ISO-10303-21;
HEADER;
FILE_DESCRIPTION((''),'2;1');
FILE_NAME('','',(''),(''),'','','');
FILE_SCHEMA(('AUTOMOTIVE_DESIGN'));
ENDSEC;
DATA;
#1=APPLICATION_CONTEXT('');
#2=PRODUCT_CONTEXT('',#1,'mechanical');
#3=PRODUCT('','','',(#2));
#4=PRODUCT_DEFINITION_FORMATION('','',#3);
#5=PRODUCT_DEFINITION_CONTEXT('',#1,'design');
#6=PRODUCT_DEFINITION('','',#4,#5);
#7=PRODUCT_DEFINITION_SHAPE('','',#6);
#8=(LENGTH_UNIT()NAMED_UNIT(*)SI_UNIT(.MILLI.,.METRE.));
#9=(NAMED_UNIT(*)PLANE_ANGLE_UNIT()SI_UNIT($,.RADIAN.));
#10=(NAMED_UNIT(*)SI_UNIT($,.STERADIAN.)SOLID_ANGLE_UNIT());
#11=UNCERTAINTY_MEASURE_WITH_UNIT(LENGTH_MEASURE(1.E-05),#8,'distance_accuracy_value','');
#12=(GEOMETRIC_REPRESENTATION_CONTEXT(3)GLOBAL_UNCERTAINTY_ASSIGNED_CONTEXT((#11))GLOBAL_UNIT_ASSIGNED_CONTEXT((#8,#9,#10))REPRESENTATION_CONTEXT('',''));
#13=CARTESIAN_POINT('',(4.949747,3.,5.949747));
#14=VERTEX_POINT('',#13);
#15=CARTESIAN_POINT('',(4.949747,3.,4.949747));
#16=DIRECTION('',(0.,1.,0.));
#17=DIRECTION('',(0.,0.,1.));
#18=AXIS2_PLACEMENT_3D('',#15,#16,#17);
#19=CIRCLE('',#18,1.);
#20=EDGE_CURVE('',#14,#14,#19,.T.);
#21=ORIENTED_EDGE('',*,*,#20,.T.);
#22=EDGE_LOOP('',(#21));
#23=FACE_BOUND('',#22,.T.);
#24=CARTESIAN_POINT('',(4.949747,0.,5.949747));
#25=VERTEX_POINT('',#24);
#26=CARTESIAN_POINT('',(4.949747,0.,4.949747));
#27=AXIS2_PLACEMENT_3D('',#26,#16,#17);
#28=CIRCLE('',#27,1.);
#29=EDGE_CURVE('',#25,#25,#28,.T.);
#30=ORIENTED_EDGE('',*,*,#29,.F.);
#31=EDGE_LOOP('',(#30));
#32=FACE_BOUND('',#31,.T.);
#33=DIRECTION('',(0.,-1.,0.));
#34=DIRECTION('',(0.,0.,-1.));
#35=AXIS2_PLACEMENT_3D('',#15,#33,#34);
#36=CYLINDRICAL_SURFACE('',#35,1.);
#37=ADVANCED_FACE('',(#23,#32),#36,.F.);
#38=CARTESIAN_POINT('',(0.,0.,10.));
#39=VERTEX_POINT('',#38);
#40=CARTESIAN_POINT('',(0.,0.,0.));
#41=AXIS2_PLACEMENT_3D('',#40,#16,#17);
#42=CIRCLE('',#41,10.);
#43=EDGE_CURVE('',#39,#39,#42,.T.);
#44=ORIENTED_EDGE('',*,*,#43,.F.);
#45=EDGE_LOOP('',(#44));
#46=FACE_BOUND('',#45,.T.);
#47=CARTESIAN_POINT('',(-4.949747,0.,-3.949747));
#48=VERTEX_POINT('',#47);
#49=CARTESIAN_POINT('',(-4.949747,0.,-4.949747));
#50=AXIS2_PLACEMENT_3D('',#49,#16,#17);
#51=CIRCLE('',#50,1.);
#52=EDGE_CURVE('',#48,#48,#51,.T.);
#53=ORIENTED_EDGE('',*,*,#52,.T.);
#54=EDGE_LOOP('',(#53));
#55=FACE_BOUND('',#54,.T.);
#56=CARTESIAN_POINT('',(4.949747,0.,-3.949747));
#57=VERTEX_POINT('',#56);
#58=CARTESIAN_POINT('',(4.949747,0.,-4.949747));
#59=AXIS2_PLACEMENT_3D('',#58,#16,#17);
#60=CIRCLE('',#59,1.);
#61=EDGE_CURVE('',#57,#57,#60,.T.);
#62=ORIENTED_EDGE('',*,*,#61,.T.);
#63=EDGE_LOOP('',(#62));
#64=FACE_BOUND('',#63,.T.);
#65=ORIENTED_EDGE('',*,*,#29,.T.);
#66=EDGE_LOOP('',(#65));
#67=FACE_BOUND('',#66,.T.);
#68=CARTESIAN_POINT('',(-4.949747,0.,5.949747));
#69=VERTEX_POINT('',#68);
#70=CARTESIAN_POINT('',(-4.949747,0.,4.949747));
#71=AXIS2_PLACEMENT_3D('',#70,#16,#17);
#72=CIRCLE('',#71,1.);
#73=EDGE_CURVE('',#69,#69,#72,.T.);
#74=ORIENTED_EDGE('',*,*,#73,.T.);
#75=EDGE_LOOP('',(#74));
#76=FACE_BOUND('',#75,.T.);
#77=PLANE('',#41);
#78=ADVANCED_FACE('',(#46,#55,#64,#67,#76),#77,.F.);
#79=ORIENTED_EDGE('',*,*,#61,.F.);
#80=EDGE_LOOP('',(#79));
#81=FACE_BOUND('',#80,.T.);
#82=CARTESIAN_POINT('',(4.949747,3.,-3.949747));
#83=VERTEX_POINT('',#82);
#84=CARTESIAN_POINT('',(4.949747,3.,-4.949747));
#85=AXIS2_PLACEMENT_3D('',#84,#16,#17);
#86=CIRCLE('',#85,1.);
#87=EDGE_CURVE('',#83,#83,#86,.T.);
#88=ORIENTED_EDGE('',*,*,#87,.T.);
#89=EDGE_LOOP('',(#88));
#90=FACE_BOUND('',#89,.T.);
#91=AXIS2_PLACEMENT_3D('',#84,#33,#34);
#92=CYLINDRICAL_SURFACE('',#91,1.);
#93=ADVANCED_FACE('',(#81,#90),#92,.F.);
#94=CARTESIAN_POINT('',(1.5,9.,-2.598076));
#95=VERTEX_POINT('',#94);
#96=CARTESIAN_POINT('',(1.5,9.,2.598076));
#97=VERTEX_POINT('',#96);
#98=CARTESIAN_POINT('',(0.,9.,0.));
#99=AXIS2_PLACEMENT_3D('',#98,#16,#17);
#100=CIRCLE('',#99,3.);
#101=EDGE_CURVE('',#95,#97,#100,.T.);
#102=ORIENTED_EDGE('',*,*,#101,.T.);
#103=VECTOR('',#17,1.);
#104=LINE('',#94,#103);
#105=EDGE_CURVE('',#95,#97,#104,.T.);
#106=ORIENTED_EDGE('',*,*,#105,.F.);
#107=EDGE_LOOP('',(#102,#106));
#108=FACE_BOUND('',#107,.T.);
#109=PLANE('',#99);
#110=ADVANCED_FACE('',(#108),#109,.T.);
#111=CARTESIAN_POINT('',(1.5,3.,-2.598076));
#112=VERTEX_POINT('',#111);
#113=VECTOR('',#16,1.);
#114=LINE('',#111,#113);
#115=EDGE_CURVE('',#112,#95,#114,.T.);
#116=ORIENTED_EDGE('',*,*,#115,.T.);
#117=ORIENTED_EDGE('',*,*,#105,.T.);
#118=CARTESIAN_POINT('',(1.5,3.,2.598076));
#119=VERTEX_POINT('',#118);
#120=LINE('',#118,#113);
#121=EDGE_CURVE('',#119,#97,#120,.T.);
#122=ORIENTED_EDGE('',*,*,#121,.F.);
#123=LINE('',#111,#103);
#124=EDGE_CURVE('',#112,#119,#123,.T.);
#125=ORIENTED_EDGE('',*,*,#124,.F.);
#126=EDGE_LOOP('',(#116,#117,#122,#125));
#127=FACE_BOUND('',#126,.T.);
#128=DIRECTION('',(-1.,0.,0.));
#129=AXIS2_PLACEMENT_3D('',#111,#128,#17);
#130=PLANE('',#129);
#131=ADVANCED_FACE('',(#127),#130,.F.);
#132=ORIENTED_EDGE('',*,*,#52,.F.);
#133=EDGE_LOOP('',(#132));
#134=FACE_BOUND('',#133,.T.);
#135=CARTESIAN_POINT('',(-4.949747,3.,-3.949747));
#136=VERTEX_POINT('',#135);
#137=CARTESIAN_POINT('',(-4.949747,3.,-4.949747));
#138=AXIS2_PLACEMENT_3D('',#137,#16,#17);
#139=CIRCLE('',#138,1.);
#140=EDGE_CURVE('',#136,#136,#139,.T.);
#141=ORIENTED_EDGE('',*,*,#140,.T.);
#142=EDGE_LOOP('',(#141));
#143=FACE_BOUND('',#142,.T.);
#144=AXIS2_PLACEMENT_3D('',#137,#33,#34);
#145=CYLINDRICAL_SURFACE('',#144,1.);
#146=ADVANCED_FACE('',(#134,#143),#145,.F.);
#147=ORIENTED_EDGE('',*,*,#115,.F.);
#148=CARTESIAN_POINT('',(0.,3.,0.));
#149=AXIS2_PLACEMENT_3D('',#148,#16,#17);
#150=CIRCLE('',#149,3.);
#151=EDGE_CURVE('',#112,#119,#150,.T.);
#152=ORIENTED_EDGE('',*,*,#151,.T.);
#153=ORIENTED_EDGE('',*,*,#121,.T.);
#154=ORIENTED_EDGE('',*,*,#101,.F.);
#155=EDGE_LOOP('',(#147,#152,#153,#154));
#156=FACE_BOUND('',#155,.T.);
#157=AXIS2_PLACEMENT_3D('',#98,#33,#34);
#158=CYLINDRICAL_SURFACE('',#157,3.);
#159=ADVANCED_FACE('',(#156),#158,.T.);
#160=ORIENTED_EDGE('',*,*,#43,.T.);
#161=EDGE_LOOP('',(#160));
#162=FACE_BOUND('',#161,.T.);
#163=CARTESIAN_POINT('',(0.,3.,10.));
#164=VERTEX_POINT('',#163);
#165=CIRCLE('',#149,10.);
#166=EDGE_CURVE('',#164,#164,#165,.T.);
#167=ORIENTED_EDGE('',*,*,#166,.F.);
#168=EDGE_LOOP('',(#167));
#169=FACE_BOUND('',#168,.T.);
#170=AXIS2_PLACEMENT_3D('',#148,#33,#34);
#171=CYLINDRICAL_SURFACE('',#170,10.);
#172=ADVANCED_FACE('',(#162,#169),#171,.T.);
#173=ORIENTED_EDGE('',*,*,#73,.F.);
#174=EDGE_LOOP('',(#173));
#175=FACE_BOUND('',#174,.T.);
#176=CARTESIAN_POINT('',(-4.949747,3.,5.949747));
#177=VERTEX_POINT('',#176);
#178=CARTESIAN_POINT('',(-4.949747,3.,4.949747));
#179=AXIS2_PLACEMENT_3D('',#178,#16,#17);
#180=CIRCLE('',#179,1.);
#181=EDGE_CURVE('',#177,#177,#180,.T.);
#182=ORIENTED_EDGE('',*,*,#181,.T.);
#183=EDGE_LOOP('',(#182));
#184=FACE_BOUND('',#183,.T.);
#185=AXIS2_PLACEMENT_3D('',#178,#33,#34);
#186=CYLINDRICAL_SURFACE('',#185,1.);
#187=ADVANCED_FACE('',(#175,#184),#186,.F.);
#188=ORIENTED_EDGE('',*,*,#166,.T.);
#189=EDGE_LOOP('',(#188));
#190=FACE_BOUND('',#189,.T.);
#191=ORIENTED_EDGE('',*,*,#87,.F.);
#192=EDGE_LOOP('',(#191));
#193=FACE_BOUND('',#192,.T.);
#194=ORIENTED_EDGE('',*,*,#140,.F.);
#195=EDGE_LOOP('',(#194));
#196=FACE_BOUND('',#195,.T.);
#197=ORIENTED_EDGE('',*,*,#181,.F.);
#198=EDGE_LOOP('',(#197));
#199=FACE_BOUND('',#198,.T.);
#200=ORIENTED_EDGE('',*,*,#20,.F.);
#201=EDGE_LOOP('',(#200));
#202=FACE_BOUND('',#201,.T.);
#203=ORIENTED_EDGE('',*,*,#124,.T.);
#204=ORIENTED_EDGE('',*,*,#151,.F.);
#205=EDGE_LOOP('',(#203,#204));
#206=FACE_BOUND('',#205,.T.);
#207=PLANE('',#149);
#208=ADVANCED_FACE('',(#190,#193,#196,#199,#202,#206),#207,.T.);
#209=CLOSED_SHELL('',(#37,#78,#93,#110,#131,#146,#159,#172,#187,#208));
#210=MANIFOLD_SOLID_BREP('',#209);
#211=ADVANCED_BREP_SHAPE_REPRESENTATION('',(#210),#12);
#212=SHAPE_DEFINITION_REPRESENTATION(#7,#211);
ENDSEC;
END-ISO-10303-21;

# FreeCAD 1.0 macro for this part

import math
import FreeCAD as App
import Part
import Sketcher

V = App.Vector

doc = App.newDocument("Part")
body = doc.addObject("PartDesign::Body", "Body")

# Sketch on XZ plane
sketch1 = doc.addObject("Sketcher::SketchObject", "Sketch")
body.addObject(sketch1)
sketch1.AttachmentSupport = (doc.XZ_Plane, [""])
sketch1.MapMode = "FlatFace"
sketch1.addGeometry([
    Part.Circle(V(0, 0, 0), V(0, 0, 1), 10),  # 0
    Part.Circle(V(-4.9, -4.9, 0), V(0, 0, 1), 1),  # 1
    Part.Circle(V(-4.9, 4.9, 0), V(0, 0, 1), 1),  # 2
    Part.Circle(V(4.9, -4.9, 0), V(0, 0, 1), 1),  # 3
    Part.Circle(V(4.9, 4.9, 0), V(0, 0, 1), 1),  # 4
], False)
sketch1.addConstraint([
    Sketcher.Constraint("Coincident", 0, 3, -1, 1),
    Sketcher.Constraint("Equal", 1, 2),
    Sketcher.Constraint("Equal", 2, 3),
    Sketcher.Constraint("Equal", 3, 4),
    Sketcher.Constraint("Symmetric", 2, 3, 3, 3, -1, 1),
    Sketcher.Constraint("Symmetric", 1, 3, 4, 3, -1, 1),
    Sketcher.Constraint("Symmetric", 1, 3, 3, 3, -2),
    Sketcher.Constraint("Diameter", 0, 20.0),
    Sketcher.Constraint("Diameter", 1, 2.0),
    Sketcher.Constraint("DistanceX", 1, 3, -1, 1, 4.949747),
    Sketcher.Constraint("DistanceY", 1, 3, -1, 1, 4.949747),
])
pad1 = doc.addObject("PartDesign::Pad", "Pad")
body.addObject(pad1)
pad1.Profile = sketch1
pad1.Length = 3
pad1.Reversed = True

# Sketch on XZ plane
sketch2 = doc.addObject("Sketcher::SketchObject", "Sketch001")
body.addObject(sketch2)
sketch2.AttachmentSupport = (doc.XZ_Plane, [""])
sketch2.MapMode = "FlatFace"
sketch2.AttachmentOffset = App.Placement(V(0, 0, -3), App.Rotation())
sketch2.addGeometry(Part.Circle(V(0, 0, 0), V(0, 0, 1), 3), False)
sketch2.addConstraint([
    Sketcher.Constraint("Coincident", 0, 3, -1, 1),
    Sketcher.Constraint("Diameter", 0, 6.0),
])
pad2 = doc.addObject("PartDesign::Pad", "Pad001")
body.addObject(pad2)
pad2.Profile = sketch2
pad2.Length = 6
pad2.Reversed = True

# Sketch on XZ plane
sketch3 = doc.addObject("Sketcher::SketchObject", "Sketch002")
body.addObject(sketch3)
sketch3.AttachmentSupport = (doc.XZ_Plane, [""])
sketch3.MapMode = "FlatFace"
sketch3.AttachmentOffset = App.Placement(V(0, 0, -3), App.Rotation())
sketch3.addGeometry([
    Part.LineSegment(V(1.5, -2.6, 0), V(1.5, 2.6, 0)),
    Part.ArcOfCircle(Part.Circle(V(0, 0, 0), V(0, 0, 1), 3), math.radians(-60), math.radians(60)),
], False)
sketch3.addConstraint([
    Sketcher.Constraint("Coincident", 0, 1, 1, 1),
    Sketcher.Constraint("Coincident", 1, 2, 0, 2),
    Sketcher.Constraint("Vertical", 0),
    Sketcher.Constraint("Coincident", 1, 3, -1, 1),
    Sketcher.Constraint("Radius", 1, 3.0),
    Sketcher.Constraint("DistanceX", -1, 1, 0, 1, 1.5),
])
pocket1 = doc.addObject("PartDesign::Pocket", "Pocket")
body.addObject(pocket1)
pocket1.Profile = sketch3
pocket1.Length = 6

doc.recompute()
